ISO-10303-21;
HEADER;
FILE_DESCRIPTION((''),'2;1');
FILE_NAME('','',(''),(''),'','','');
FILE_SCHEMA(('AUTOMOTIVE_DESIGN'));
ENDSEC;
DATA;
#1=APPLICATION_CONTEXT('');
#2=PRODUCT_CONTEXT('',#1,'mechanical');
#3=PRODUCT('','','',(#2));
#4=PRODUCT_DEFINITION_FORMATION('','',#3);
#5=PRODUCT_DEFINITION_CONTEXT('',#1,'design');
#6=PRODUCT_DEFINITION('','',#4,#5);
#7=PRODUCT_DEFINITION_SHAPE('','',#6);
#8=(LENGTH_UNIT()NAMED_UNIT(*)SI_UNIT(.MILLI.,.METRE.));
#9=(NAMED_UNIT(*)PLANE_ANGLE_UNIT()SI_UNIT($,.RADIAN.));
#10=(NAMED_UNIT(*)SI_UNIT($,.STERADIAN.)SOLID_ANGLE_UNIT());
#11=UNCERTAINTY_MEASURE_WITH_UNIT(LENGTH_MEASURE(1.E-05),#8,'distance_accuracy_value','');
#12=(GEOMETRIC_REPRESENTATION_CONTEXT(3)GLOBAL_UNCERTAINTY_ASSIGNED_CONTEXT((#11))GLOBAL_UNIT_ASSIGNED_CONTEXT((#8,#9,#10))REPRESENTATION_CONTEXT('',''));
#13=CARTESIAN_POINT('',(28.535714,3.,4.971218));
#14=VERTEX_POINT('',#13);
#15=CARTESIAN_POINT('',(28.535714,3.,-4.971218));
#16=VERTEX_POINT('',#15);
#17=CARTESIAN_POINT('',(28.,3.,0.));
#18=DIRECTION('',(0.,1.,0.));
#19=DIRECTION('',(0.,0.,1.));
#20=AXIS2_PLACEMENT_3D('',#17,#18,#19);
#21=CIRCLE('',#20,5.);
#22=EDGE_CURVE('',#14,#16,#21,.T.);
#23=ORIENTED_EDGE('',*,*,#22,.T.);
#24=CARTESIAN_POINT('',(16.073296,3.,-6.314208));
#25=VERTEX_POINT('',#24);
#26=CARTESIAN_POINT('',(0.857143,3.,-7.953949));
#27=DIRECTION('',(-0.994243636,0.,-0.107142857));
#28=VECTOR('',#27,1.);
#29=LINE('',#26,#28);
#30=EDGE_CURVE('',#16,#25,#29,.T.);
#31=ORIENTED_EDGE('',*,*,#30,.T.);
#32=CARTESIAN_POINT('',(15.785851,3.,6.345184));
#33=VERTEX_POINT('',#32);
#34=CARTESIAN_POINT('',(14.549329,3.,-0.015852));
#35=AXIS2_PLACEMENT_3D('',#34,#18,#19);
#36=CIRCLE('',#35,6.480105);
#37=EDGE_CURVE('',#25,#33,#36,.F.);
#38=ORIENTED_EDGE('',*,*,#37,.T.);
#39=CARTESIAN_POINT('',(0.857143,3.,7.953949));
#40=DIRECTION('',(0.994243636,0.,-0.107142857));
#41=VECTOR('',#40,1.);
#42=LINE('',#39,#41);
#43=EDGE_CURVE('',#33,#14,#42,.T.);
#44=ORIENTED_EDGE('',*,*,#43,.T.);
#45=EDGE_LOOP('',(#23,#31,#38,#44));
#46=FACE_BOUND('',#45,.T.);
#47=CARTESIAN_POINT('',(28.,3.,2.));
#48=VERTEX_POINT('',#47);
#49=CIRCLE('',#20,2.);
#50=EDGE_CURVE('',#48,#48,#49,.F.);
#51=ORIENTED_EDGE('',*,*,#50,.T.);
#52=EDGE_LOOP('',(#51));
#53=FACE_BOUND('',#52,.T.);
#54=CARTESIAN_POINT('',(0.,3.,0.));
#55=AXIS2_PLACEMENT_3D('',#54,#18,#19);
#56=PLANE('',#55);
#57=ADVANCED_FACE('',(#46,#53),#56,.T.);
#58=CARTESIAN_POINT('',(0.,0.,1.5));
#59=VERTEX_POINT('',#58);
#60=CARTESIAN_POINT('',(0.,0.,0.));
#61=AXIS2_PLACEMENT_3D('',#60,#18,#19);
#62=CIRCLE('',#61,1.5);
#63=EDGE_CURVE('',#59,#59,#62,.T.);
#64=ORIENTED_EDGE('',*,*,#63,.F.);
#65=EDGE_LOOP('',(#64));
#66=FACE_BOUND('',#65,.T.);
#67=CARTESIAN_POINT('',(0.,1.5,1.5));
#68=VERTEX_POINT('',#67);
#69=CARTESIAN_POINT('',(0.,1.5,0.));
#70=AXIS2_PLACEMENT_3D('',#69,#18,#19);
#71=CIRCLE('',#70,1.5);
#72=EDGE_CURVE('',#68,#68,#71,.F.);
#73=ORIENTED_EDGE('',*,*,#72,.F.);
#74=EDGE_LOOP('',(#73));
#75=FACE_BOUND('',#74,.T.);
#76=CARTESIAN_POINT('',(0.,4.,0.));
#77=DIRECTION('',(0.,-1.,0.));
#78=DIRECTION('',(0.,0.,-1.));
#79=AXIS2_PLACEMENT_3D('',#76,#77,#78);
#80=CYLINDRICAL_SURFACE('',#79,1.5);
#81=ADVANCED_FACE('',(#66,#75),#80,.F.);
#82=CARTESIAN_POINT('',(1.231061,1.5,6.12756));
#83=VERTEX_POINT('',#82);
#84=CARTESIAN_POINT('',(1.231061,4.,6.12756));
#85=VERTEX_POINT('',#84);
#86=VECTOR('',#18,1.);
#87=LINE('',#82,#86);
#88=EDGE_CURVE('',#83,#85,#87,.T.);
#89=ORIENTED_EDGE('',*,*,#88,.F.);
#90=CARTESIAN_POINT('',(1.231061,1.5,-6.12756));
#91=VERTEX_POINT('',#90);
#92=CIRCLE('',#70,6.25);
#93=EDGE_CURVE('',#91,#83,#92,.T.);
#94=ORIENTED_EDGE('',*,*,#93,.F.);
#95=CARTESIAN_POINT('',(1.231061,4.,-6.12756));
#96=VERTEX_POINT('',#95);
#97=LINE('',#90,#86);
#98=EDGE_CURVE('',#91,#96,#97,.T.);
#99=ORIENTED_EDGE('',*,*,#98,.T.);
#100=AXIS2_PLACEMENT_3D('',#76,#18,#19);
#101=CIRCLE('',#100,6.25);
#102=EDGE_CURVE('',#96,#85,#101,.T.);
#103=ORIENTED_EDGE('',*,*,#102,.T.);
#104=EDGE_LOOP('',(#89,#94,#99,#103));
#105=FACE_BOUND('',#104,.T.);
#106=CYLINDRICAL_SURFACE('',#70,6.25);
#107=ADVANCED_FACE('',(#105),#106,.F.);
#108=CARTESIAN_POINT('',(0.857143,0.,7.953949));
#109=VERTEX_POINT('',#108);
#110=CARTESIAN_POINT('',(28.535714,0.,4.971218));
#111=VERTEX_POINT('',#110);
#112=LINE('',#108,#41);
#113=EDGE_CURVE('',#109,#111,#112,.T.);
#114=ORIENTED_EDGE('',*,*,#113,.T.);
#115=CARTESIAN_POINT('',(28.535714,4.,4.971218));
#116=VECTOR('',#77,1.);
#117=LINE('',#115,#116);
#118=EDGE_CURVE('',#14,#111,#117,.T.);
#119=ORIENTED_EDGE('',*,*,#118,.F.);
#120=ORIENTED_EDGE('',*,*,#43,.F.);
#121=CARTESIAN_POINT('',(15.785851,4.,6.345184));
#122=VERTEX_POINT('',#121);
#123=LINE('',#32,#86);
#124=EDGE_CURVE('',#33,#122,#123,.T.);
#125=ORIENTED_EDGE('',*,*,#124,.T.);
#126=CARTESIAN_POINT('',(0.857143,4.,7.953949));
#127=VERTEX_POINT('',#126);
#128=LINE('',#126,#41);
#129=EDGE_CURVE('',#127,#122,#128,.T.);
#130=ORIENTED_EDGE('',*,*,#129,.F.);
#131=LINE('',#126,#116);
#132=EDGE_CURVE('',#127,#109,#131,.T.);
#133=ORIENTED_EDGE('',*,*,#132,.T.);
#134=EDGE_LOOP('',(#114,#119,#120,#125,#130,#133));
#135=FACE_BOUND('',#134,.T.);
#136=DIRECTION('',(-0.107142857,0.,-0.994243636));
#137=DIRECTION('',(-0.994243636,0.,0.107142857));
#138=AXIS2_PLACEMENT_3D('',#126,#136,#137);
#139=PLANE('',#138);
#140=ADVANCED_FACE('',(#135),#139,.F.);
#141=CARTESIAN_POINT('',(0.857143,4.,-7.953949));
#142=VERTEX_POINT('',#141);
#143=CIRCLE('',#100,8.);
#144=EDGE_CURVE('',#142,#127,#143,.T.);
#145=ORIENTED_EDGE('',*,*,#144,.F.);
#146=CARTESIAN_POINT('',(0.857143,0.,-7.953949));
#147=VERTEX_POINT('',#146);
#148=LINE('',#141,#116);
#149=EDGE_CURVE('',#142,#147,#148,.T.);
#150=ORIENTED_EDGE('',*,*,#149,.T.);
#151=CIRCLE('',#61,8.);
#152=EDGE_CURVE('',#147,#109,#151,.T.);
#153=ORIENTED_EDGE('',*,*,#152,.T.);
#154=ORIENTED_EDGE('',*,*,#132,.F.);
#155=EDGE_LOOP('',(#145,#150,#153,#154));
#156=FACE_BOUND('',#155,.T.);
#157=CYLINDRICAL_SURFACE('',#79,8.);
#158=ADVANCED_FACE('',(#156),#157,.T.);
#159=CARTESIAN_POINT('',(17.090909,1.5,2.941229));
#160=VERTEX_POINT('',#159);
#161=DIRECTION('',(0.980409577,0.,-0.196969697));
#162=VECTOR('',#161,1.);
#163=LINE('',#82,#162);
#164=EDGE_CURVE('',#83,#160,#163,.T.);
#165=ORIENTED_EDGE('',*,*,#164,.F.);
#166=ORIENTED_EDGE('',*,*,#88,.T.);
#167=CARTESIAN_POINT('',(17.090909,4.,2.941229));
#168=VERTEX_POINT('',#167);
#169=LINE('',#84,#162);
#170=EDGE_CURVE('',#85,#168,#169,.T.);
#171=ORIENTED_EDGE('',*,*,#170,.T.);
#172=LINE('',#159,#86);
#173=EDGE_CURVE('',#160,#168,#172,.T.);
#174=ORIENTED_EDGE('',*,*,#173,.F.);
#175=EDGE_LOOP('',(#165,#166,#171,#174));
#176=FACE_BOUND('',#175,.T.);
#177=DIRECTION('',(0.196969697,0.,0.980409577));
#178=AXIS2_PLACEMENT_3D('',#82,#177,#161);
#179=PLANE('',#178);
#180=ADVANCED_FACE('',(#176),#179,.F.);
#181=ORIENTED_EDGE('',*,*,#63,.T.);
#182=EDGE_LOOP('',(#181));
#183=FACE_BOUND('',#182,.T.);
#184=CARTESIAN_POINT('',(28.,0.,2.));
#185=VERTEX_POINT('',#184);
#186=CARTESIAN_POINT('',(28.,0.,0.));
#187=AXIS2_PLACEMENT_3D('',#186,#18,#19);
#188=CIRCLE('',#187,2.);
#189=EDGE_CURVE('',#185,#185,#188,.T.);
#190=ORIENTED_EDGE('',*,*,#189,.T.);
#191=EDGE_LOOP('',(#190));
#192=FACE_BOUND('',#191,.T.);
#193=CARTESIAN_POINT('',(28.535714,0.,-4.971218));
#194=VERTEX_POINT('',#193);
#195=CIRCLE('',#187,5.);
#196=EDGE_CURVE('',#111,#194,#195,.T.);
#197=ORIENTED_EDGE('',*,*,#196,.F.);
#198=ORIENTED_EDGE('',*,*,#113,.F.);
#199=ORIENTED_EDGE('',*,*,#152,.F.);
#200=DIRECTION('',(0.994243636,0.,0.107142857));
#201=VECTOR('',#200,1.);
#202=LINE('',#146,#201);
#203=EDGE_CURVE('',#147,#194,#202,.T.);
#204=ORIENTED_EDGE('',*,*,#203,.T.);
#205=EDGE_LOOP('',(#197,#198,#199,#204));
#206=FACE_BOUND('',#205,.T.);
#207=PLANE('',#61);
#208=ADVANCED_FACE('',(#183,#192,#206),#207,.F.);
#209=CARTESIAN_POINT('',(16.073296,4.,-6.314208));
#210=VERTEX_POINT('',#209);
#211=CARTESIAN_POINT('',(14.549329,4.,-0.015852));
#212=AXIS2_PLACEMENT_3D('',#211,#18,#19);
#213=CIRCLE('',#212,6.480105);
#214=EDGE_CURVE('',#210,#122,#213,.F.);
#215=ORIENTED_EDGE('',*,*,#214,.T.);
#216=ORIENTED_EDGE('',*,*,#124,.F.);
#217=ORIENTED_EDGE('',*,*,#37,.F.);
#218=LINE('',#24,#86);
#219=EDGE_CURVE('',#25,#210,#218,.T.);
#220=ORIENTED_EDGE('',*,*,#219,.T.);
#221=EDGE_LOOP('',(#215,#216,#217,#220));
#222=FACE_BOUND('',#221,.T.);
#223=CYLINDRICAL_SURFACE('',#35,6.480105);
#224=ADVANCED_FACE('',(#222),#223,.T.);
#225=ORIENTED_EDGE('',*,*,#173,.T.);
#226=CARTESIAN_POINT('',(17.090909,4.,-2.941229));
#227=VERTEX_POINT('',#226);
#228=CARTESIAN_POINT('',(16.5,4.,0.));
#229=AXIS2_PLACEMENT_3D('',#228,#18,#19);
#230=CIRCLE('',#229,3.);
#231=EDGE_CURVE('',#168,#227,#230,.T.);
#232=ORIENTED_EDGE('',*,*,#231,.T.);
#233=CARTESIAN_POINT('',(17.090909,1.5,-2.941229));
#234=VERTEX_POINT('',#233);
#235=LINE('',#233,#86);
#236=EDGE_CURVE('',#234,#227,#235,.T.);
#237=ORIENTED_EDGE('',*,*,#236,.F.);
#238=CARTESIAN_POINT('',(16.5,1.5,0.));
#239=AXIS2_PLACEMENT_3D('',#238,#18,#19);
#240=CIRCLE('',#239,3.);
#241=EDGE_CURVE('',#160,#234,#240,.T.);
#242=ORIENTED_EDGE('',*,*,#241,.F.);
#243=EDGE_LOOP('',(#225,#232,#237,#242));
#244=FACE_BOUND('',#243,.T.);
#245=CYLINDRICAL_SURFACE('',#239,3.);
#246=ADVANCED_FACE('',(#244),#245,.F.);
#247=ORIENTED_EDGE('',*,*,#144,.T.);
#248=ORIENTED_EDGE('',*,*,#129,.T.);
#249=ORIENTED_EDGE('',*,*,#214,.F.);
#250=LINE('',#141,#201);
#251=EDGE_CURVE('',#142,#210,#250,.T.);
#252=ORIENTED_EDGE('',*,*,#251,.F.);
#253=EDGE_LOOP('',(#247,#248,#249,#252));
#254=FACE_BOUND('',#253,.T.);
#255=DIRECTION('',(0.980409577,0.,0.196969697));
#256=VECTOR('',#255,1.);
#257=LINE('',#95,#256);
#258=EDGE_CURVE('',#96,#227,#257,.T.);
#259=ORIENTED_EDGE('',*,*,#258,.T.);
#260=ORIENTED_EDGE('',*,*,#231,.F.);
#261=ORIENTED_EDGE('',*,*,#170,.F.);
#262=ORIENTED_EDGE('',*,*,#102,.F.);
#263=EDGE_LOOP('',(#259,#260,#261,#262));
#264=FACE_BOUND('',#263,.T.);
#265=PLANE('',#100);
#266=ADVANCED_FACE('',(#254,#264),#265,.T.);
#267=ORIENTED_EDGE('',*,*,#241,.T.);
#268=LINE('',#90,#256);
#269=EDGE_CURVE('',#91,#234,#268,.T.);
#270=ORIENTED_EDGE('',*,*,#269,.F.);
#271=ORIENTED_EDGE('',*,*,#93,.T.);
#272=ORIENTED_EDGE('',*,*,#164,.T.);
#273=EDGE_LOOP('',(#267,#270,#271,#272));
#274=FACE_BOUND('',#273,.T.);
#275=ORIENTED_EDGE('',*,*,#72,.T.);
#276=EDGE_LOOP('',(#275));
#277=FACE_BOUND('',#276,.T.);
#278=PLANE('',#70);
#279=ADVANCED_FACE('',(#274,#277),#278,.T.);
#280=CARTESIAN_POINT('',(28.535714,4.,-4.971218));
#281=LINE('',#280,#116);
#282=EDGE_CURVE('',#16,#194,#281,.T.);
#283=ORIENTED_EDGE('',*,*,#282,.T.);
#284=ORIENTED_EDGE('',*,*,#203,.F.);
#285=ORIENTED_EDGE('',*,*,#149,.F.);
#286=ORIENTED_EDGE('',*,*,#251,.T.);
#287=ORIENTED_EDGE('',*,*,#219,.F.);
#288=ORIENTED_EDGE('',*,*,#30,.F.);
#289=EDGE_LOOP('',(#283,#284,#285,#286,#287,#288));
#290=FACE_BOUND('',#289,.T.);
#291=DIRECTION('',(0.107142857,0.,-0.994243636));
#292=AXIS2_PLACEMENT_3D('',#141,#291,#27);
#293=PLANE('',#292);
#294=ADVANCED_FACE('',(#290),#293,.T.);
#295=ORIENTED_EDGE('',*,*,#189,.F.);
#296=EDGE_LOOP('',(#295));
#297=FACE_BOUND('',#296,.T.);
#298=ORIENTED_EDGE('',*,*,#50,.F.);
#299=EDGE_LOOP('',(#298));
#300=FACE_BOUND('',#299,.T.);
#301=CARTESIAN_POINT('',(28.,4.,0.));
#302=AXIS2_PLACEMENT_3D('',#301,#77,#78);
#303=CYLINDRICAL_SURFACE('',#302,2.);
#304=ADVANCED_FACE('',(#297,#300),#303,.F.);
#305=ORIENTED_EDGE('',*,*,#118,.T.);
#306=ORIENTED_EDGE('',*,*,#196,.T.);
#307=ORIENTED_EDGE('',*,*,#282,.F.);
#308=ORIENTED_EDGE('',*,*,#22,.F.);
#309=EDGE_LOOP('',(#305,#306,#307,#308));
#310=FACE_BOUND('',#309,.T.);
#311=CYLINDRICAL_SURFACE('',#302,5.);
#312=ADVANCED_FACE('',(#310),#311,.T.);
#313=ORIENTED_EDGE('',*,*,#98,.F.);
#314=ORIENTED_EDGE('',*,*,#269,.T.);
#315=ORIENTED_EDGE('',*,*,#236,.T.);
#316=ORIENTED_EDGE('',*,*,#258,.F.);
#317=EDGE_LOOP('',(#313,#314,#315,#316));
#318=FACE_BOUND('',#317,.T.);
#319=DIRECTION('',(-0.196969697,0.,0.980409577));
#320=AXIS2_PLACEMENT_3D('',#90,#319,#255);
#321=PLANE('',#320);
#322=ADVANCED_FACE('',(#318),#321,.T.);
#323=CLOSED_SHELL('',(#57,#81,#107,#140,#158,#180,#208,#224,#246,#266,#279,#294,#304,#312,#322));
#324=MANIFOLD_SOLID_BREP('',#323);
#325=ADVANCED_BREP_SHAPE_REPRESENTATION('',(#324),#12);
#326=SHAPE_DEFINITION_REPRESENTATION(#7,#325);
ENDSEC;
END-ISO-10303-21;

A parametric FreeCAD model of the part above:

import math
import FreeCAD as App
import Part
import Sketcher

doc = App.newDocument("Part")
body = doc.addObject("PartDesign::Body", "Body")

sketch1 = body.newObject("Sketcher::SketchObject", "Sketch")
sketch1.AttachmentSupport = (doc.getObject("XZ_Plane"), [""])
sketch1.MapMode = "FlatFace"
sketch1.addGeometry(Part.LineSegment(App.Vector(28.5, -5, 0), App.Vector(0.9, -8, 0)), False)
sketch1.addGeometry(Part.ArcOfCircle(Part.Circle(App.Vector(0, 0, 0), App.Vector(0, 0, 1), 8), math.radians(84), math.radians(276)), False)
sketch1.addGeometry(Part.LineSegment(App.Vector(0.9, 8, 0), App.Vector(28.5, 5, 0)), False)
sketch1.addGeometry(Part.ArcOfCircle(Part.Circle(App.Vector(28, 0, 0), App.Vector(0, 0, 1), 5), math.radians(-84), math.radians(84)), False)
sketch1.addGeometry(Part.Circle(App.Vector(0, 0, 0), App.Vector(0, 0, 1), 1.5), False)
sketch1.addGeometry(Part.Circle(App.Vector(28, 0, 0), App.Vector(0, 0, 1), 2), False)
sketch1.addConstraint(Sketcher.Constraint("Tangent", 0, 2, 1, 2))
sketch1.addConstraint(Sketcher.Constraint("Tangent", 1, 1, 2, 1))
sketch1.addConstraint(Sketcher.Constraint("Tangent", 2, 2, 3, 2))
sketch1.addConstraint(Sketcher.Constraint("Tangent", 3, 1, 0, 1))
sketch1.addConstraint(Sketcher.Constraint("Coincident", 1, 3, -1, 1))
sketch1.addConstraint(Sketcher.Constraint("Coincident", 4, 3, -1, 1))
sketch1.addConstraint(Sketcher.Constraint("Coincident", 5, 3, 3, 3))
sketch1.addConstraint(Sketcher.Constraint("PointOnObject", 3, 3, -1))
sketch1.addConstraint(Sketcher.Constraint("Diameter", 4, 3.0))
sketch1.addConstraint(Sketcher.Constraint("Diameter", 5, 4.0))
sketch1.addConstraint(Sketcher.Constraint("Radius", 1, 8.0))
sketch1.addConstraint(Sketcher.Constraint("Radius", 3, 5.0))
sketch1.addConstraint(Sketcher.Constraint("DistanceX", -1, 1, 3, 3, 28.0))
pad1 = body.newObject("PartDesign::Pad", "Pad")
pad1.Profile = sketch1
pad1.Length = 4
pad1.Reversed = True

sketch2 = body.newObject("Sketcher::SketchObject", "Sketch001")
sketch2.AttachmentSupport = (doc.getObject("XZ_Plane"), [""])
sketch2.MapMode = "FlatFace"
sketch2.AttachmentOffset = App.Placement(App.Vector(0, 0, -4), App.Rotation())
sketch2.addGeometry(Part.LineSegment(App.Vector(17.1, -2.9, 0), App.Vector(1.2, -6.1, 0)), False)
sketch2.addGeometry(Part.ArcOfCircle(Part.Circle(App.Vector(0, 0, 0), App.Vector(0, 0, 1), 6.2), math.radians(79), math.radians(281)), False)
sketch2.addGeometry(Part.LineSegment(App.Vector(1.2, 6.1, 0), App.Vector(17.1, 2.9, 0)), False)
sketch2.addGeometry(Part.ArcOfCircle(Part.Circle(App.Vector(16.5, 0, 0), App.Vector(0, 0, 1), 3), math.radians(-79), math.radians(79)), False)
sketch2.addConstraint(Sketcher.Constraint("Tangent", 0, 2, 1, 2))
sketch2.addConstraint(Sketcher.Constraint("Tangent", 1, 1, 2, 1))
sketch2.addConstraint(Sketcher.Constraint("Tangent", 2, 2, 3, 2))
sketch2.addConstraint(Sketcher.Constraint("Tangent", 3, 1, 0, 1))
sketch2.addConstraint(Sketcher.Constraint("Coincident", 1, 3, -1, 1))
sketch2.addConstraint(Sketcher.Constraint("PointOnObject", 3, 3, -1))
sketch2.addConstraint(Sketcher.Constraint("Radius", 3, 3.0))
sketch2.addConstraint(Sketcher.Constraint("Radius", 1, 6.25))
sketch2.addConstraint(Sketcher.Constraint("DistanceX", -1, 1, 3, 3, 16.5))
pocket1 = body.newObject("PartDesign::Pocket", "Pocket")
pocket1.Profile = sketch2
pocket1.Length = 2.5
pocket1.Reversed = True

sketch3 = body.newObject("Sketcher::SketchObject", "Sketch002")
sketch3.AttachmentSupport = (doc.getObject("XZ_Plane"), [""])
sketch3.MapMode = "FlatFace"
sketch3.AttachmentOffset = App.Placement(App.Vector(0, 0, -3), App.Rotation())
sketch3.addGeometry(Part.LineSegment(App.Vector(28.5, -5, 0), App.Vector(16.1, -6.3, 0)), False)
sketch3.addGeometry(Part.ArcOfCircle(Part.Circle(App.Vector(14.5, 0, 0), App.Vector(0, 0, 1), 6.5), math.radians(-76), math.radians(79)), False)
sketch3.addGeometry(Part.LineSegment(App.Vector(15.8, 6.3, 0), App.Vector(28.5, 5, 0)), False)
sketch3.addGeometry(Part.ArcOfCircle(Part.Circle(App.Vector(28, 0, 0), App.Vector(0, 0, 1), 5), math.radians(-84), math.radians(84)), False)
sketch3.addGeometry(Part.Circle(App.Vector(28, 0, 0), App.Vector(0, 0, 1), 2), False)
sketch3.addConstraint(Sketcher.Constraint("Coincident", 0, 2, 1, 1))
sketch3.addConstraint(Sketcher.Constraint("Coincident", 1, 2, 2, 1))
sketch3.addConstraint(Sketcher.Constraint("Tangent", 2, 2, 3, 2))
sketch3.addConstraint(Sketcher.Constraint("Tangent", 3, 1, 0, 1))
sketch3.addConstraint(Sketcher.Constraint("Coincident", 4, 3, 3, 3))
sketch3.addConstraint(Sketcher.Constraint("Symmetric", 2, 2, 3, 1, -1))
sketch3.addConstraint(Sketcher.Constraint("Diameter", 4, 4.0))
sketch3.addConstraint(Sketcher.Constraint("Radius", 3, 5.0))
sketch3.addConstraint(Sketcher.Constraint("DistanceX", -1, 1, 3, 3, 28.0))
sketch3.addConstraint(Sketcher.Constraint("Radius", 1, 6.480105))
sketch3.addConstraint(Sketcher.Constraint("Distance", 0, 12.534572))
sketch3.addConstraint(Sketcher.Constraint("Distance", 2, 12.823681))
sketch3.addConstraint(Sketcher.Constraint("DistanceX", -1, 1, 1, 3, 14.549329))
pocket2 = body.newObject("PartDesign::Pocket", "Pocket001")
pocket2.Profile = sketch3
pocket2.Length = 1

doc.recompute()
